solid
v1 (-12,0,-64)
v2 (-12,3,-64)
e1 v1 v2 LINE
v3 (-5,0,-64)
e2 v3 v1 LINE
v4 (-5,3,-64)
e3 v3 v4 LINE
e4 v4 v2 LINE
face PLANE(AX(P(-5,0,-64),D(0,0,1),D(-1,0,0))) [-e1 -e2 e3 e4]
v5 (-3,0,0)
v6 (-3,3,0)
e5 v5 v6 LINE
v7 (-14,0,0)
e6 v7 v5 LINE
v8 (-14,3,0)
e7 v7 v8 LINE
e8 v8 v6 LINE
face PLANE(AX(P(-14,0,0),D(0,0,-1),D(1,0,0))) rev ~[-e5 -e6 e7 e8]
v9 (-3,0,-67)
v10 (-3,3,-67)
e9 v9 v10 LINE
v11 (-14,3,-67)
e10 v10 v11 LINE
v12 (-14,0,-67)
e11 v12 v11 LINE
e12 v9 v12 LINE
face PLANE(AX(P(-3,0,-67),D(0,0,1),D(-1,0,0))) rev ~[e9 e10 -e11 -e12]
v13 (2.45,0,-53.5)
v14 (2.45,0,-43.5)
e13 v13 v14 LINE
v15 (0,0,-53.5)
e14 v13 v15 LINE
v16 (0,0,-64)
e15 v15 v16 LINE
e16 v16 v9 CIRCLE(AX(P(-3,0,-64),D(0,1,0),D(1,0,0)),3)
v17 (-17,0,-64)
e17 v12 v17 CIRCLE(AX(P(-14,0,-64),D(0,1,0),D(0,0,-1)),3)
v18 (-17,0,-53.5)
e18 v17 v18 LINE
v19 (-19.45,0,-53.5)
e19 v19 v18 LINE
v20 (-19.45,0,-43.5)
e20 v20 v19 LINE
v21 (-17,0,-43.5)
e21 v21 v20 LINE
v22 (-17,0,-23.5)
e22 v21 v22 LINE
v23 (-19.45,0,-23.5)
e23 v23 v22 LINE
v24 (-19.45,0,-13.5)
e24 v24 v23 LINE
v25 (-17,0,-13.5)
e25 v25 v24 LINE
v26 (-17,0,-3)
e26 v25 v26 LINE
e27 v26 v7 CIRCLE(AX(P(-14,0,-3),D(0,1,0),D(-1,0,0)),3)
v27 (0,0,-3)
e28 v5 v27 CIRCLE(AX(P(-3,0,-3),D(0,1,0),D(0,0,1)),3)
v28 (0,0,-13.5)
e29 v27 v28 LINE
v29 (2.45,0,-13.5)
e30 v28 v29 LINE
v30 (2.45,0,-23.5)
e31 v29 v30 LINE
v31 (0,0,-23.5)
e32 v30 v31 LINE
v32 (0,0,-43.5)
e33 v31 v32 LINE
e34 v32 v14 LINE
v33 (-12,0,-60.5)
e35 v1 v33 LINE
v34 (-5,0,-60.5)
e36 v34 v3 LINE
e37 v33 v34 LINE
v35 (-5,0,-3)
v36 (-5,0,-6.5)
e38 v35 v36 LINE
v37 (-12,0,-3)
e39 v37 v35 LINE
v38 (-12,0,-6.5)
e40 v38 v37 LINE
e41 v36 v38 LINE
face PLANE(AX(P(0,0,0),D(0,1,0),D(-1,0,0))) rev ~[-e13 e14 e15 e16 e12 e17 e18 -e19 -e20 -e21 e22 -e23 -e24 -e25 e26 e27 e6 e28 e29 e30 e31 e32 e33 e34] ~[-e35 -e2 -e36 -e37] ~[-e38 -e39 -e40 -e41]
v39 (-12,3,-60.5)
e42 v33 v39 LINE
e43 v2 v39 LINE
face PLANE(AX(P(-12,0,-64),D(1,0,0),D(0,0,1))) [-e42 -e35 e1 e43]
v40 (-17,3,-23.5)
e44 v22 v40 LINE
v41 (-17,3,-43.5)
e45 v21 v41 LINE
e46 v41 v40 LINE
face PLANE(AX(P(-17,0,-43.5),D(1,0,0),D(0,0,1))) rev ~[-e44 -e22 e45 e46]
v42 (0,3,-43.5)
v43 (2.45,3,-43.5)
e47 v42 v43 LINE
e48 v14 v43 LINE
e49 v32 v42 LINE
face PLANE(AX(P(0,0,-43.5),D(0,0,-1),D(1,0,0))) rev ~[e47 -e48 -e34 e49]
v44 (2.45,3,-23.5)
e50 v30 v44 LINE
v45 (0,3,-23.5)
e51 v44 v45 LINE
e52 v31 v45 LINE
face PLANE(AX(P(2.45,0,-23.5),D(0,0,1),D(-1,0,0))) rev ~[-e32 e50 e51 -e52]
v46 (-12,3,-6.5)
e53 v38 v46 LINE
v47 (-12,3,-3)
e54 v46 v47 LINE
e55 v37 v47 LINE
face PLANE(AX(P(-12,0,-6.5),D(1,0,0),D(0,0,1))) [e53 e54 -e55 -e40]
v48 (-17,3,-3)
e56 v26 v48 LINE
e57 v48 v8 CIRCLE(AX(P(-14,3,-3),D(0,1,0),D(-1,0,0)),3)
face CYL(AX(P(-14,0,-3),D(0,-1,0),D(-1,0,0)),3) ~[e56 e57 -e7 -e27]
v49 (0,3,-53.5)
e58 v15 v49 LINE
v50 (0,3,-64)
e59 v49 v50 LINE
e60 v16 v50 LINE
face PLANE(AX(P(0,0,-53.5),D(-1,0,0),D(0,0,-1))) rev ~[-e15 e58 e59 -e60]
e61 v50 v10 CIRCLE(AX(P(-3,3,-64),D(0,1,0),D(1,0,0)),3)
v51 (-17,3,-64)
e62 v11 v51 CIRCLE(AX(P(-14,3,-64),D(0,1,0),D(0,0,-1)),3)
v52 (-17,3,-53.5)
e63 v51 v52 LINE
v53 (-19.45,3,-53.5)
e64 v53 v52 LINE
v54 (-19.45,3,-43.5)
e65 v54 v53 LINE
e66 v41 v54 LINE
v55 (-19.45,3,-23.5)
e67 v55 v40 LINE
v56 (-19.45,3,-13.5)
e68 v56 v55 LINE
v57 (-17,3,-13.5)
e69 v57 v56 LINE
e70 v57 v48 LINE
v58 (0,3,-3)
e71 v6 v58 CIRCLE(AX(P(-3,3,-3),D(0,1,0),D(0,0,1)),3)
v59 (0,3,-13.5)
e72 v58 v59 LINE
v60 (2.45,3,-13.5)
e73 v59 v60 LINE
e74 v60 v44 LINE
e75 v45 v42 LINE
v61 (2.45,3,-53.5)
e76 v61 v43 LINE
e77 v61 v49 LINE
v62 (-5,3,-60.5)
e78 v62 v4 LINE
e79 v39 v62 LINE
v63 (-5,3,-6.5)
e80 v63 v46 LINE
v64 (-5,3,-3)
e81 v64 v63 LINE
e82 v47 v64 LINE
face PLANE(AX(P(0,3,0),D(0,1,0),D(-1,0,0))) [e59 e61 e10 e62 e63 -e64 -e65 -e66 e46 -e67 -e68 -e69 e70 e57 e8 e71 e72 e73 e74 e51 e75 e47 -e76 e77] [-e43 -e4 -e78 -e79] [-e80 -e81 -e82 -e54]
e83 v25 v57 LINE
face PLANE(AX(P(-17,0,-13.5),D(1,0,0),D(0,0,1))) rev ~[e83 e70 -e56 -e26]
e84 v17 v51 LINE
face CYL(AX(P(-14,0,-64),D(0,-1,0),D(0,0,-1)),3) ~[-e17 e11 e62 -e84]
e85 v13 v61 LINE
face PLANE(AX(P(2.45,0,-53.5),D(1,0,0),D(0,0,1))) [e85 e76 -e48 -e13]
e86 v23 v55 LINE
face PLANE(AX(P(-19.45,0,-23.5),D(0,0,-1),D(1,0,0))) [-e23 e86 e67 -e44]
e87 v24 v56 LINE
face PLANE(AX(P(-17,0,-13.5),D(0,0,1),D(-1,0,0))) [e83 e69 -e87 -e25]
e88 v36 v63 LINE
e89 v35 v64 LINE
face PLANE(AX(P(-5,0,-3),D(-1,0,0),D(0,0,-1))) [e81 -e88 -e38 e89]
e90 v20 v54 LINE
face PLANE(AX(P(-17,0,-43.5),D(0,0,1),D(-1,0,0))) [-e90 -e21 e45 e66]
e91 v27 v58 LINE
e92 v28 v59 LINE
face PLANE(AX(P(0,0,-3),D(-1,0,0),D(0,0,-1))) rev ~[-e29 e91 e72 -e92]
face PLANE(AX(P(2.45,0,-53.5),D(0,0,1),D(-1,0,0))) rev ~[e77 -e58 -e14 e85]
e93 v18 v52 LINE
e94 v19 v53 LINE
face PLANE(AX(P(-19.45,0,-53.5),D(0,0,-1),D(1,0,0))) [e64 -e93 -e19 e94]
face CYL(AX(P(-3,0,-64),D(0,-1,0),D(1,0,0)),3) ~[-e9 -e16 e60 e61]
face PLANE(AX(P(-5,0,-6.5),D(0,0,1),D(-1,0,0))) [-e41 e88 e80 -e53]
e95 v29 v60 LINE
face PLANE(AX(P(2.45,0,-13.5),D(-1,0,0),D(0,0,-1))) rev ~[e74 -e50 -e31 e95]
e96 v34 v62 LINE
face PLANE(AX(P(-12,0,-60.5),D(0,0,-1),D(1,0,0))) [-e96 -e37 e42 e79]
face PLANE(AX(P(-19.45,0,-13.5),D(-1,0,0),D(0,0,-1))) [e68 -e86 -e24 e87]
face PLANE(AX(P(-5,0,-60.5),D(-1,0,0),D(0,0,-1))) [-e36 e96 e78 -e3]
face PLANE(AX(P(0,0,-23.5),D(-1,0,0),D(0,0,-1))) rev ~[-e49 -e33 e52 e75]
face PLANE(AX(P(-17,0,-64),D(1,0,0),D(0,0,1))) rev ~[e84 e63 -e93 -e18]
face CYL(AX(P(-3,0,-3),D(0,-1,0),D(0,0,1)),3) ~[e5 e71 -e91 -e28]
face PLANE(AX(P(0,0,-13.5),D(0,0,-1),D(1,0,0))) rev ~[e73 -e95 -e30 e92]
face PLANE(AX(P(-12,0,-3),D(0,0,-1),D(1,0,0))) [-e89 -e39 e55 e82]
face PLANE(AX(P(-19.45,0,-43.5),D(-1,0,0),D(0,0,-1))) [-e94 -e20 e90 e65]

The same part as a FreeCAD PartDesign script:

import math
import FreeCAD as App
import Part
import Sketcher

V = App.Vector
Q = App.Units.Quantity

doc = App.newDocument("Part")
body = doc.addObject("PartDesign::Body", "Body")

sketch1 = body.newObject("Sketcher::SketchObject", "Sketch")
sketch1.AttachmentSupport = (doc.getObject("XZ_Plane"), [""])
sketch1.MapMode = "FlatFace"
sketch1.addGeometry([
    Part.LineSegment(V(-19.4, -13.5, 0), V(-17, -13.5, 0)),
    Part.LineSegment(V(-17, -13.5, 0), V(-17, -3, 0)),
    Part.ArcOfCircle(Part.Circle(V(-14, -3, 0), V(0, 0, 1), 3), math.radians(90), math.radians(180)),
    Part.LineSegment(V(-14, 0, 0), V(-3, 0, 0)),
    Part.ArcOfCircle(Part.Circle(V(-3, -3, 0), V(0, 0, 1), 3), math.radians(0), math.radians(90)),
    Part.LineSegment(V(0, -3, 0), V(0, -13.5, 0)),
    Part.LineSegment(V(0, -13.5, 0), V(2.5, -13.5, 0)),
    Part.LineSegment(V(2.5, -13.5, 0), V(2.5, -23.5, 0)),
    Part.LineSegment(V(2.5, -23.5, 0), V(0, -23.5, 0)),
    Part.LineSegment(V(0, -23.5, 0), V(0, -43.5, 0)),
    Part.LineSegment(V(0, -43.5, 0), V(2.5, -43.5, 0)),
    Part.LineSegment(V(2.5, -43.5, 0), V(2.5, -53.5, 0)),
    Part.LineSegment(V(2.5, -53.5, 0), V(0, -53.5, 0)),
    Part.LineSegment(V(0, -53.5, 0), V(0, -64, 0)),
    Part.ArcOfCircle(Part.Circle(V(-3, -64, 0), V(0, 0, 1), 3), math.radians(-90), math.radians(0)),
    Part.LineSegment(V(-3, -67, 0), V(-14, -67, 0)),
    Part.ArcOfCircle(Part.Circle(V(-14, -64, 0), V(0, 0, 1), 3), math.radians(180), math.radians(270)),
    Part.LineSegment(V(-17, -64, 0), V(-17, -53.5, 0)),
    Part.LineSegment(V(-17, -53.5, 0), V(-19.4, -53.5, 0)),
    Part.LineSegment(V(-19.4, -53.5, 0), V(-19.4, -43.5, 0)),
    Part.LineSegment(V(-19.4, -43.5, 0), V(-17, -43.5, 0)),
    Part.LineSegment(V(-17, -43.5, 0), V(-17, -23.5, 0)),
    Part.LineSegment(V(-17, -23.5, 0), V(-19.4, -23.5, 0)),
    Part.LineSegment(V(-19.4, -23.5, 0), V(-19.4, -13.5, 0)),
    Part.LineSegment(V(-5, -60.5, 0), V(-12, -60.5, 0)),
    Part.LineSegment(V(-12, -60.5, 0), V(-12, -64, 0)),
    Part.LineSegment(V(-12, -64, 0), V(-5, -64, 0)),
    Part.LineSegment(V(-5, -64, 0), V(-5, -60.5, 0)),
    Part.LineSegment(V(-5, -3, 0), V(-12, -3, 0)),
    Part.LineSegment(V(-12, -3, 0), V(-12, -6.5, 0)),
    Part.LineSegment(V(-12, -6.5, 0), V(-5, -6.5, 0)),
    Part.LineSegment(V(-5, -6.5, 0), V(-5, -3, 0)),
], False)
sketch1.addConstraint([
    Sketcher.Constraint("Coincident", 0, 2, 1, 1),
    Sketcher.Constraint("Tangent", 1, 2, 2, 2),
    Sketcher.Constraint("Tangent", 2, 1, 3, 1),
    Sketcher.Constraint("Tangent", 3, 2, 4, 2),
    Sketcher.Constraint("Tangent", 4, 1, 5, 1),
    Sketcher.Constraint("Coincident", 5, 2, 6, 1),
    Sketcher.Constraint("Coincident", 6, 2, 7, 1),
    Sketcher.Constraint("Coincident", 7, 2, 8, 1),
    Sketcher.Constraint("Coincident", 8, 2, 9, 1),
    Sketcher.Constraint("Coincident", 9, 2, 10, 1),
    Sketcher.Constraint("Coincident", 10, 2, 11, 1),
    Sketcher.Constraint("Coincident", 11, 2, 12, 1),
    Sketcher.Constraint("Coincident", 12, 2, 13, 1),
    Sketcher.Constraint("Tangent", 13, 2, 14, 2),
    Sketcher.Constraint("Tangent", 14, 1, 15, 1),
    Sketcher.Constraint("Tangent", 15, 2, 16, 2),
    Sketcher.Constraint("Tangent", 16, 1, 17, 1),
    Sketcher.Constraint("Coincident", 17, 2, 18, 1),
    Sketcher.Constraint("Coincident", 18, 2, 19, 1),
    Sketcher.Constraint("Coincident", 19, 2, 20, 1),
    Sketcher.Constraint("Coincident", 20, 2, 21, 1),
    Sketcher.Constraint("Coincident", 21, 2, 22, 1),
    Sketcher.Constraint("Coincident", 22, 2, 23, 1),
    Sketcher.Constraint("Coincident", 23, 2, 0, 1),
    Sketcher.Constraint("Coincident", 24, 2, 25, 1),
    Sketcher.Constraint("Coincident", 25, 2, 26, 1),
    Sketcher.Constraint("Coincident", 26, 2, 27, 1),
    Sketcher.Constraint("Coincident", 27, 2, 24, 1),
    Sketcher.Constraint("Coincident", 28, 2, 29, 1),
    Sketcher.Constraint("Coincident", 29, 2, 30, 1),
    Sketcher.Constraint("Coincident", 30, 2, 31, 1),
    Sketcher.Constraint("Coincident", 31, 2, 28, 1),
    Sketcher.Constraint("Horizontal", 0),
    Sketcher.Constraint("Vertical", 1),
    Sketcher.Constraint("Horizontal", 3),
    Sketcher.Constraint("Vertical", 5),
    Sketcher.Constraint("Horizontal", 6),
    Sketcher.Constraint("Vertical", 7),
    Sketcher.Constraint("Horizontal", 8),
    Sketcher.Constraint("Vertical", 9),
    Sketcher.Constraint("Horizontal", 10),
    Sketcher.Constraint("Vertical", 11),
    Sketcher.Constraint("Horizontal", 12),
    Sketcher.Constraint("Vertical", 13),
    Sketcher.Constraint("Horizontal", 15),
    Sketcher.Constraint("Vertical", 17),
    Sketcher.Constraint("Horizontal", 18),
    Sketcher.Constraint("Vertical", 19),
    Sketcher.Constraint("Horizontal", 20),
    Sketcher.Constraint("Vertical", 21),
    Sketcher.Constraint("Horizontal", 22),
    Sketcher.Constraint("Vertical", 23),
    Sketcher.Constraint("Horizontal", 24),
    Sketcher.Constraint("Vertical", 25),
    Sketcher.Constraint("Horizontal", 26),
    Sketcher.Constraint("Vertical", 27),
    Sketcher.Constraint("Horizontal", 28),
    Sketcher.Constraint("Vertical", 29),
    Sketcher.Constraint("Horizontal", 30),
    Sketcher.Constraint("Vertical", 31),
    Sketcher.Constraint("Equal", 2, 4),
    Sketcher.Constraint("Equal", 4, 14),
    Sketcher.Constraint("Equal", 14, 16),
    Sketcher.Constraint("PointOnObject", 2, 1, -1),
    Sketcher.Constraint("PointOnObject", 4, 1, -2),
    Sketcher.Constraint("PointOnObject", 8, 2, -2),
    Sketcher.Constraint("PointOnObject", 12, 2, -2),
    Sketcher.Constraint("Horizontal", 0, 2, 5, 2),
    Sketcher.Constraint("Horizontal", 12, 2, 17, 2),
    Sketcher.Constraint("Horizontal", 10, 2, 19, 2),
    Sketcher.Constraint("Horizontal", 8, 2, 21, 2),
    Sketcher.Constraint("Horizontal", 16, 1, 25, 2),
    Sketcher.Constraint("Horizontal", 4, 1, 28, 2),
    Sketcher.Constraint("Vertical", 2, 3, 16, 3),
    Sketcher.Constraint("Vertical", 7, 2, 10, 2),
    Sketcher.Constraint("Vertical", 17, 2, 20, 2),
    Sketcher.Constraint("Vertical", 19, 2, 22, 2),
    Sketcher.Constraint("Vertical", 25, 2, 28, 2),
    Sketcher.Constraint("Vertical", 27, 2, 30, 2),
    Sketcher.Constraint("Equal", 0, 6),
    Sketcher.Constraint("Equal", 7, 11),
    Sketcher.Constraint("Equal", 5, 13),
    Sketcher.Constraint("Equal", 27, 29),
    Sketcher.Constraint("Radius", 2, Q("3 mm")),
    Sketcher.Constraint("DistanceX", 24, 2, 24, 1, Q("7 mm")),
    Sketcher.Constraint("DistanceY", 7, 2, 7, 1, Q("10 mm")),
    Sketcher.Constraint("DistanceY", 9, 2, 9, 1, Q("20 mm")),
    Sketcher.Constraint("DistanceY", 25, 2, 25, 1, Q("3.5 mm")),
    Sketcher.Constraint("DistanceX", 0, 2, -1, 1, Q("17 mm")),
    Sketcher.Constraint("DistanceY", 14, 1, -1, 1, Q("67 mm")),
    Sketcher.Constraint("DistanceX", 0, 1, 0, 2, Q("2.45 mm")),
    Sketcher.Constraint("DistanceX", 24, 2, -1, 1, Q("12 mm")),
])
pad1 = body.newObject("PartDesign::Pad", "Pad")
pad1.Profile = sketch1
pad1.Length = 3
pad1.Reversed = True

doc.recompute()
